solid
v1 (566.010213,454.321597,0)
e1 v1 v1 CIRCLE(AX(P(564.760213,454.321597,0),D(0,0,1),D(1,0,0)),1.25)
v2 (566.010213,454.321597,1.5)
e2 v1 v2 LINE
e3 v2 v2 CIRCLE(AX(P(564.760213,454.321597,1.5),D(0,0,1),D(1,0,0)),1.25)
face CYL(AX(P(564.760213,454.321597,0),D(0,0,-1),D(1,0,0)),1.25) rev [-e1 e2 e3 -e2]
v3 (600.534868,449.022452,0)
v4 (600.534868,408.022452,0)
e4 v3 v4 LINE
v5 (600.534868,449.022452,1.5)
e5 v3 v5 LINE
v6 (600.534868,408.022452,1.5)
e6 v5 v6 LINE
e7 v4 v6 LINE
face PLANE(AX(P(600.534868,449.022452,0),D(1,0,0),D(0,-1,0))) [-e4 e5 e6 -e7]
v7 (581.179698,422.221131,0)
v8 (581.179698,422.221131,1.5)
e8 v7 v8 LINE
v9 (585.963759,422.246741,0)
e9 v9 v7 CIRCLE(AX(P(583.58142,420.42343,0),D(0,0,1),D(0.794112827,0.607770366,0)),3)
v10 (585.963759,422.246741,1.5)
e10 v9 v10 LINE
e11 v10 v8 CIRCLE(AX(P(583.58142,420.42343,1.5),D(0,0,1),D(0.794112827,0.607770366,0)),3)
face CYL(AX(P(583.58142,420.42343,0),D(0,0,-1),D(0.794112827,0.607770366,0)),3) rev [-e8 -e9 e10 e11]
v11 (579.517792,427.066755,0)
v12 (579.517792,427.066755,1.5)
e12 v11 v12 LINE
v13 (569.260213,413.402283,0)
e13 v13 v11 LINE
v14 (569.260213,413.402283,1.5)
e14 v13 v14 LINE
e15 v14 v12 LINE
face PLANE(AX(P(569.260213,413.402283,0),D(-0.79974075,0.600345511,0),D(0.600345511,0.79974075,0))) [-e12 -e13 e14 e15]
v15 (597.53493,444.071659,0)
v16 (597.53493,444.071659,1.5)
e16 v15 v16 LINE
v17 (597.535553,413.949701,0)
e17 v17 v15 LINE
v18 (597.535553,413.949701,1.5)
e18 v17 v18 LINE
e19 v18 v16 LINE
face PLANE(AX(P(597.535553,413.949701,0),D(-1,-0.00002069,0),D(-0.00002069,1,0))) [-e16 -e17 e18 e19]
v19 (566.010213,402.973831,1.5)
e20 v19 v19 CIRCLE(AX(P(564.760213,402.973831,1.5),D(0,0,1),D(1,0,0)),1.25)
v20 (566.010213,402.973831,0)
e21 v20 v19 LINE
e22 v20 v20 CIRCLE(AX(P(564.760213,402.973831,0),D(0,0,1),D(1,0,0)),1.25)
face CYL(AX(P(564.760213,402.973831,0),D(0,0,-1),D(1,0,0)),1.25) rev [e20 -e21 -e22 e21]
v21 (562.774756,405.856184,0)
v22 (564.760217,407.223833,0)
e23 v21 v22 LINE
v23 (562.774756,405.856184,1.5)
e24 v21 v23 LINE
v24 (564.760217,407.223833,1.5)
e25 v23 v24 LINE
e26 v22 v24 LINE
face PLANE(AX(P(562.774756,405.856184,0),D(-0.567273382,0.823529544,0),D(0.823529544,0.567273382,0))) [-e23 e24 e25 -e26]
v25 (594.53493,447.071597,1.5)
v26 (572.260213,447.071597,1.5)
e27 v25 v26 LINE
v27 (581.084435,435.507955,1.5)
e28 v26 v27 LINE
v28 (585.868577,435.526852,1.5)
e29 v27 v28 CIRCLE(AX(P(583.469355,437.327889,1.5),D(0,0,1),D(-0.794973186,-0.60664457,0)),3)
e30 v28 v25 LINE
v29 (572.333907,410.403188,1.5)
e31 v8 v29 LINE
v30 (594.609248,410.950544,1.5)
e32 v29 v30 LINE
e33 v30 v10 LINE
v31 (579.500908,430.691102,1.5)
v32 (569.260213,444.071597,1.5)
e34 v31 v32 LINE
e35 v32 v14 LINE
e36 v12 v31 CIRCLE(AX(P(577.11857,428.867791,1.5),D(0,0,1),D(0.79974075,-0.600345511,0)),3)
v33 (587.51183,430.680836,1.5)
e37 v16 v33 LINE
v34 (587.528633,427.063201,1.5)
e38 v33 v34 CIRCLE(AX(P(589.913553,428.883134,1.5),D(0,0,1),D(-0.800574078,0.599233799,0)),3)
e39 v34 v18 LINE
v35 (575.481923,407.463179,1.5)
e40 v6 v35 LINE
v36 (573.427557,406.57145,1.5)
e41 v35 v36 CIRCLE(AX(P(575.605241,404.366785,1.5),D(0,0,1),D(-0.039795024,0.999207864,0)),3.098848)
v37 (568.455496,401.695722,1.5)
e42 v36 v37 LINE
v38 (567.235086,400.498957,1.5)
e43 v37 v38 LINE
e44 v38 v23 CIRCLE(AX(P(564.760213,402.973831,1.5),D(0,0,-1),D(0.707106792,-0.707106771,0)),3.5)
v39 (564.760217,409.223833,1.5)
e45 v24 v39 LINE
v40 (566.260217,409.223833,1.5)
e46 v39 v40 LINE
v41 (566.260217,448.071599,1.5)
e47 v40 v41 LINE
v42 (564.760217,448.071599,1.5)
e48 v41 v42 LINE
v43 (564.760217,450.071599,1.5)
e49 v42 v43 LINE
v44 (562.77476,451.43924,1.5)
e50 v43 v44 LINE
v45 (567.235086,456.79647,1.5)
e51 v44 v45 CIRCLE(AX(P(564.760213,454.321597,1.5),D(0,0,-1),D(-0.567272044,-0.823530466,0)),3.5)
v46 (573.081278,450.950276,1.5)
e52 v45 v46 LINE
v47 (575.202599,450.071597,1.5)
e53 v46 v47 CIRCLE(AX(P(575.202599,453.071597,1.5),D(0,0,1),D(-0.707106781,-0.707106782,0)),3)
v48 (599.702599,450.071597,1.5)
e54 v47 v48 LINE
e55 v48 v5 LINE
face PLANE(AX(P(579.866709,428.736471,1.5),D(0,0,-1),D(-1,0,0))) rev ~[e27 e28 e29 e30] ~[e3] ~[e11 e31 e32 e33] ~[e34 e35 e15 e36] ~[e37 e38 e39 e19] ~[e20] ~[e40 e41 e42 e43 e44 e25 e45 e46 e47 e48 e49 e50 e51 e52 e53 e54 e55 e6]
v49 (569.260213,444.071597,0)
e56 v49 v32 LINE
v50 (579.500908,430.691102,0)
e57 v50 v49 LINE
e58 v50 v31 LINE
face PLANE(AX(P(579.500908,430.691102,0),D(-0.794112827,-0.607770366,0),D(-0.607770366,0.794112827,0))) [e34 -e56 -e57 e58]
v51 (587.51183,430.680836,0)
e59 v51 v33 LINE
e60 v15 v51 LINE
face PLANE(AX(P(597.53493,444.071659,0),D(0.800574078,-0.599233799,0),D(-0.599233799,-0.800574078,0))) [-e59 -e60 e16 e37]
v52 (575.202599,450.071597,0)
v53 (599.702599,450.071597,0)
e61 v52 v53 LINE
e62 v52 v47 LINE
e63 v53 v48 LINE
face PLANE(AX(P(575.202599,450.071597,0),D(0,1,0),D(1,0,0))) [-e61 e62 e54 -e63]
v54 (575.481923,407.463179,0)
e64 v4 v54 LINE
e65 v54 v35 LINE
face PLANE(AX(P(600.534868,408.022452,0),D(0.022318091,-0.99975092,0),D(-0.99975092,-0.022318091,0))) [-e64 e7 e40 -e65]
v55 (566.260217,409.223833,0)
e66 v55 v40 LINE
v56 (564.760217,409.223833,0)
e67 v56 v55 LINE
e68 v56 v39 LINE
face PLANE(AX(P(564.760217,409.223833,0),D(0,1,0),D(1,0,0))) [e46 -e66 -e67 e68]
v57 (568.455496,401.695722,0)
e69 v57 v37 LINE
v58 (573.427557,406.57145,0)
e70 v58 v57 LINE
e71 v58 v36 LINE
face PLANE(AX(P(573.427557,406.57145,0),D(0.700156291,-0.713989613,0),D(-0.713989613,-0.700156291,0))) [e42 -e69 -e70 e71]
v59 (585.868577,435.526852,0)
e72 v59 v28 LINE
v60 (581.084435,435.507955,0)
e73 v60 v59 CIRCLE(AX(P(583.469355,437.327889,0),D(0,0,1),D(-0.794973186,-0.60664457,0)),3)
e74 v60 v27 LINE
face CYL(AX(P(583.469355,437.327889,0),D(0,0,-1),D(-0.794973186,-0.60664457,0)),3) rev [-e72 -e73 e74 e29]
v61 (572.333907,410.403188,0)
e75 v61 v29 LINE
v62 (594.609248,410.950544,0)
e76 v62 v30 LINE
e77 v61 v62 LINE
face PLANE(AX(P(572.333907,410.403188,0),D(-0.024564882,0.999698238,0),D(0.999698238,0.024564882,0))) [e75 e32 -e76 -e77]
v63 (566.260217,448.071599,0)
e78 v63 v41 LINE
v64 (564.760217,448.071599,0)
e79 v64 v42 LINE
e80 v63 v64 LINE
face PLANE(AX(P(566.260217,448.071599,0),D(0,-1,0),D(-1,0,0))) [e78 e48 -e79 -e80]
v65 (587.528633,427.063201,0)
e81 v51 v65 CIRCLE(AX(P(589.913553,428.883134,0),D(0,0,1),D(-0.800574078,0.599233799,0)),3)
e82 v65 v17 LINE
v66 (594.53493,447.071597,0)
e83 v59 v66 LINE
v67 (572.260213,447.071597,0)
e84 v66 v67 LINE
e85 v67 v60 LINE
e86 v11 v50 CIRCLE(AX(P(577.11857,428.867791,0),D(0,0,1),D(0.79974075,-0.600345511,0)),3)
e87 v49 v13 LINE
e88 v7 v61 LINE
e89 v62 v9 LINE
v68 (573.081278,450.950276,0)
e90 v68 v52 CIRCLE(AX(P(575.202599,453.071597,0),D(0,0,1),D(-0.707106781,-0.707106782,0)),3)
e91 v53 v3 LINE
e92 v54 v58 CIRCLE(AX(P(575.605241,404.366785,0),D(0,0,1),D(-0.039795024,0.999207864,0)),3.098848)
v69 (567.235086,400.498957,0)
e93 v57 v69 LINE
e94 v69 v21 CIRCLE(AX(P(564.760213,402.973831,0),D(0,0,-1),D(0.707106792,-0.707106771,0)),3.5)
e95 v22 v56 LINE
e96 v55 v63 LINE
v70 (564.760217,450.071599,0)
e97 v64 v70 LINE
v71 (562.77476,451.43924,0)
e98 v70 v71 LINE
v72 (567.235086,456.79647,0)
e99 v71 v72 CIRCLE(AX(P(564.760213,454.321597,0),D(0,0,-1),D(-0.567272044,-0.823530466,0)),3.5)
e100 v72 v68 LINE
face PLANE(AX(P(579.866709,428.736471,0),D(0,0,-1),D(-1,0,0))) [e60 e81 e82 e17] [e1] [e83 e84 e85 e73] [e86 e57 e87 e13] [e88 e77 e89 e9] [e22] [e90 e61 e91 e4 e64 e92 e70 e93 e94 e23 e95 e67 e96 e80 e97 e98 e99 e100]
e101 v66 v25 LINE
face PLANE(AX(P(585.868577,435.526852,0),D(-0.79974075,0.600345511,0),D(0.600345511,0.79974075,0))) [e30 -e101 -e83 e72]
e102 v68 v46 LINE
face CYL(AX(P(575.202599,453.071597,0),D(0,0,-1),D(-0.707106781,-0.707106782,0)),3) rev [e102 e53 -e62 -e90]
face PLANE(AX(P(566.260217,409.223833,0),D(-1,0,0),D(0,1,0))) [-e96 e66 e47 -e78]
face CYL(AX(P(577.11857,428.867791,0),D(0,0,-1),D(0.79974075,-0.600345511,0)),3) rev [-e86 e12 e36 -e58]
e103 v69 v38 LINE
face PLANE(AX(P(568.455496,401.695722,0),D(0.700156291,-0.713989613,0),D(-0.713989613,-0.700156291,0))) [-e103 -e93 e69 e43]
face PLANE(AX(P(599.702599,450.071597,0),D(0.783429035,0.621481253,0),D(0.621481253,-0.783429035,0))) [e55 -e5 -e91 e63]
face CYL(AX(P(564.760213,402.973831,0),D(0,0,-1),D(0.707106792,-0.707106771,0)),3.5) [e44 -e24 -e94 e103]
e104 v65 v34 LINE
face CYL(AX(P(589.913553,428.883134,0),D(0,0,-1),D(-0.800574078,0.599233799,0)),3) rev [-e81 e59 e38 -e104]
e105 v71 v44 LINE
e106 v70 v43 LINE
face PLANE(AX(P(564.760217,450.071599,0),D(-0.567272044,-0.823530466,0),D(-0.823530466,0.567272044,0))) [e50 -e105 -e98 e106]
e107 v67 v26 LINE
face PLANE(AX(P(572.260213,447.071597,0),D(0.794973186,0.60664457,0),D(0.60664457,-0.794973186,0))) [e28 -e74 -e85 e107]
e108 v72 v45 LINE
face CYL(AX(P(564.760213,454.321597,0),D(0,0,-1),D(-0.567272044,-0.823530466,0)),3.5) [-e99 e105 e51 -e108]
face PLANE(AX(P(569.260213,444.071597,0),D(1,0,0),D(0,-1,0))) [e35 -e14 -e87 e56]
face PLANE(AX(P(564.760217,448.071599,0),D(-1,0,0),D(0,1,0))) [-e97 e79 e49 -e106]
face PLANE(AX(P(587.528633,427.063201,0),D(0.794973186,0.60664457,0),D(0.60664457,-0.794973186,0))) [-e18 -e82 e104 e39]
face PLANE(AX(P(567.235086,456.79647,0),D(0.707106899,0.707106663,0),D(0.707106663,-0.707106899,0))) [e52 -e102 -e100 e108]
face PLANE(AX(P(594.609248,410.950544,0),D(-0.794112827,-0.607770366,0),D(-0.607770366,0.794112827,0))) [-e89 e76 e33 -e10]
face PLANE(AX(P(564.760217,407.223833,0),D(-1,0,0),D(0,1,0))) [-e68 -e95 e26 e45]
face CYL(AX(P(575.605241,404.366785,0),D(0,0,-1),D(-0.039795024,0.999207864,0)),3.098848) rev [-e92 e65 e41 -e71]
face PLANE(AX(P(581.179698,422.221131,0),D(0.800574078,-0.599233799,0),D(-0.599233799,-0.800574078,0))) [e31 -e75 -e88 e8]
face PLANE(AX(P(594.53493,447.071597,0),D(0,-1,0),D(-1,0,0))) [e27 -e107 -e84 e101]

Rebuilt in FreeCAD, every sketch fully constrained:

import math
import FreeCAD as App
import Part
import Sketcher

V = App.Vector
Q = App.Units.Quantity

doc = App.newDocument("Part")
params = doc.addObject("Spreadsheet::Sheet", "Params")
for row, (alias, value) in enumerate([
    ("sketch1_radius", "3 mm"),
    ("sketch1_diameter", "2.5 mm"),
    ("sketch1_radius2", "3.5 mm"),
    ("sketch1_height", "2 mm"),
    ("sketch1_height2", "41 mm"),
    ("pad1_length", "1.5 mm"),
], start=1):
    params.set(f"A{row}", alias)
    params.set(f"B{row}", "=" + value)
    params.setAlias(f"B{row}", alias)

body = doc.addObject("PartDesign::Body", "Body")

# Sketch on XY plane
sketch1 = body.newObject("Sketcher::SketchObject", "Sketch")
sketch1.AttachmentSupport = (doc.getObject("XY_Plane"), [""])
sketch1.MapMode = "FlatFace"
sketch1.addGeometry(Part.LineSegment(V(573.1, 451, 0), V(567.2, 456.8, 0)), False)
sketch1.addGeometry(Part.ArcOfCircle(Part.Circle(V(564.8, 454.3, 0), V(0, 0, 1), 3.5), math.radians(45), math.radians(235)), False)
sketch1.addGeometry(Part.LineSegment(V(562.8, 451.4, 0), V(564.8, 450.1, 0)), False)
sketch1.addGeometry(Part.LineSegment(V(564.8, 450.1, 0), V(564.8, 448.1, 0)), False)
sketch1.addGeometry(Part.LineSegment(V(564.8, 448.1, 0), V(566.3, 448.1, 0)), False)
sketch1.addGeometry(Part.LineSegment(V(566.3, 448.1, 0), V(566.3, 409.2, 0)), False)
sketch1.addGeometry(Part.LineSegment(V(566.3, 409.2, 0), V(564.8, 409.2, 0)), False)
sketch1.addGeometry(Part.LineSegment(V(564.8, 409.2, 0), V(564.8, 407.2, 0)), False)
sketch1.addGeometry(Part.LineSegment(V(564.8, 407.2, 0), V(562.8, 405.9, 0)), False)
sketch1.addGeometry(Part.ArcOfCircle(Part.Circle(V(564.8, 403, 0), V(0, 0, 1), 3.5), math.radians(125), math.radians(315)), False)
sketch1.addGeometry(Part.LineSegment(V(567.2, 400.5, 0), V(568.5, 401.7, 0)), False)
sketch1.addGeometry(Part.LineSegment(V(568.5, 401.7, 0), V(573.4, 406.6, 0)), False)
sketch1.addGeometry(Part.ArcOfCircle(Part.Circle(V(575.6, 404.4, 0), V(0, 0, 1), 3.1), math.radians(92), math.radians(135)), False)
sketch1.addGeometry(Part.LineSegment(V(575.5, 407.5, 0), V(600.5, 408, 0)), False)
sketch1.addGeometry(Part.LineSegment(V(600.5, 408, 0), V(600.5, 449, 0)), False)
sketch1.addGeometry(Part.LineSegment(V(600.5, 449, 0), V(599.7, 450.1, 0)), False)
sketch1.addGeometry(Part.LineSegment(V(599.7, 450.1, 0), V(575.2, 450.1, 0)), False)
sketch1.addGeometry(Part.ArcOfCircle(Part.Circle(V(575.2, 453.1, 0), V(0, 0, 1), 3), math.radians(-135), math.radians(-90)), False)
sketch1.addGeometry(Part.LineSegment(V(586, 422.2, 0), V(594.6, 411, 0)), False)
sketch1.addGeometry(Part.LineSegment(V(594.6, 411, 0), V(572.3, 410.4, 0)), False)
sketch1.addGeometry(Part.LineSegment(V(572.3, 410.4, 0), V(581.2, 422.2, 0)), False)
sketch1.addGeometry(Part.ArcOfCircle(Part.Circle(V(583.6, 420.4, 0), V(0, 0, 1), 3), math.radians(37), math.radians(143)), False)
sketch1.addGeometry(Part.Circle(V(564.8, 403, 0), V(0, 0, 1), 1.2), False)
sketch1.addGeometry(Part.LineSegment(V(587.5, 430.7, 0), V(597.5, 444.1, 0)), False)
sketch1.addGeometry(Part.LineSegment(V(597.5, 444.1, 0), V(597.5, 413.9, 0)), False)
sketch1.addGeometry(Part.LineSegment(V(597.5, 413.9, 0), V(587.5, 427.1, 0)), False)
sketch1.addGeometry(Part.ArcOfCircle(Part.Circle(V(589.9, 428.9, 0), V(0, 0, 1), 3), math.radians(143), math.radians(217)), False)
sketch1.addGeometry(Part.LineSegment(V(581.1, 435.5, 0), V(572.3, 447.1, 0)), False)
sketch1.addGeometry(Part.LineSegment(V(572.3, 447.1, 0), V(594.5, 447.1, 0)), False)
sketch1.addGeometry(Part.LineSegment(V(594.5, 447.1, 0), V(585.9, 435.5, 0)), False)
sketch1.addGeometry(Part.ArcOfCircle(Part.Circle(V(583.5, 437.3, 0), V(0, 0, 1), 3), math.radians(-143), math.radians(-37)), False)
sketch1.addGeometry(Part.LineSegment(V(579.5, 427.1, 0), V(569.3, 413.4, 0)), False)
sketch1.addGeometry(Part.LineSegment(V(569.3, 413.4, 0), V(569.3, 444.1, 0)), False)
sketch1.addGeometry(Part.LineSegment(V(569.3, 444.1, 0), V(579.5, 430.7, 0)), False)
sketch1.addGeometry(Part.ArcOfCircle(Part.Circle(V(577.1, 428.9, 0), V(0, 0, 1), 3), math.radians(-37), math.radians(37)), False)
sketch1.addGeometry(Part.Circle(V(564.8, 454.3, 0), V(0, 0, 1), 1.2), False)
sketch1.addConstraint(Sketcher.Constraint("Tangent", 0, 2, 1, 1))
sketch1.addConstraint(Sketcher.Constraint("Tangent", 1, 2, 2, 1))
sketch1.addConstraint(Sketcher.Constraint("Coincident", 2, 2, 3, 1))
sketch1.addConstraint(Sketcher.Constraint("Coincident", 3, 2, 4, 1))
sketch1.addConstraint(Sketcher.Constraint("Coincident", 4, 2, 5, 1))
sketch1.addConstraint(Sketcher.Constraint("Coincident", 5, 2, 6, 1))
sketch1.addConstraint(Sketcher.Constraint("Coincident", 6, 2, 7, 1))
sketch1.addConstraint(Sketcher.Constraint("Coincident", 7, 2, 8, 1))
sketch1.addConstraint(Sketcher.Constraint("Tangent", 8, 2, 9, 1))
sketch1.addConstraint(Sketcher.Constraint("Coincident", 9, 2, 10, 1))
sketch1.addConstraint(Sketcher.Constraint("Coincident", 10, 2, 11, 1))
sketch1.addConstraint(Sketcher.Constraint("Coincident", 11, 2, 12, 2))
sketch1.addConstraint(Sketcher.Constraint("Coincident", 12, 1, 13, 1))
sketch1.addConstraint(Sketcher.Constraint("Coincident", 13, 2, 14, 1))
sketch1.addConstraint(Sketcher.Constraint("Coincident", 14, 2, 15, 1))
sketch1.addConstraint(Sketcher.Constraint("Coincident", 15, 2, 16, 1))
sketch1.addConstraint(Sketcher.Constraint("Tangent", 16, 2, 17, 2))
sketch1.addConstraint(Sketcher.Constraint("Tangent", 17, 1, 0, 1))
sketch1.addConstraint(Sketcher.Constraint("Coincident", 18, 2, 19, 1))
sketch1.addConstraint(Sketcher.Constraint("Coincident", 19, 2, 20, 1))
sketch1.addConstraint(Sketcher.Constraint("Tangent", 20, 2, 21, 2))
sketch1.addConstraint(Sketcher.Constraint("Tangent", 21, 1, 18, 1))
sketch1.addConstraint(Sketcher.Constraint("Coincident", 23, 2, 24, 1))
sketch1.addConstraint(Sketcher.Constraint("Coincident", 24, 2, 25, 1))
sketch1.addConstraint(Sketcher.Constraint("Tangent", 25, 2, 26, 2))
sketch1.addConstraint(Sketcher.Constraint("Tangent", 26, 1, 23, 1))
sketch1.addConstraint(Sketcher.Constraint("Coincident", 27, 2, 28, 1))
sketch1.addConstraint(Sketcher.Constraint("Coincident", 28, 2, 29, 1))
sketch1.addConstraint(Sketcher.Constraint("Tangent", 29, 2, 30, 2))
sketch1.addConstraint(Sketcher.Constraint("Tangent", 30, 1, 27, 1))
sketch1.addConstraint(Sketcher.Constraint("Coincident", 31, 2, 32, 1))
sketch1.addConstraint(Sketcher.Constraint("Coincident", 32, 2, 33, 1))
sketch1.addConstraint(Sketcher.Constraint("Tangent", 33, 2, 34, 2))
sketch1.addConstraint(Sketcher.Constraint("Tangent", 34, 1, 31, 1))
sketch1.addConstraint(Sketcher.Constraint("Vertical", 3))
sketch1.addConstraint(Sketcher.Constraint("Horizontal", 4))
sketch1.addConstraint(Sketcher.Constraint("Vertical", 5))
sketch1.addConstraint(Sketcher.Constraint("Horizontal", 6))
sketch1.addConstraint(Sketcher.Constraint("Vertical", 7))
sketch1.addConstraint(Sketcher.Constraint("Vertical", 14))
sketch1.addConstraint(Sketcher.Constraint("Horizontal", 16))
sketch1.addConstraint(Sketcher.Constraint("Horizontal", 28))
sketch1.addConstraint(Sketcher.Constraint("Vertical", 32))
sketch1.addConstraint(Sketcher.Constraint("Coincident", 22, 3, 9, 3))
sketch1.addConstraint(Sketcher.Constraint("Coincident", 35, 3, 1, 3))
sketch1.addConstraint(Sketcher.Constraint("Equal", 1, 9))
sketch1.addConstraint(Sketcher.Constraint("Equal", 17, 21))
sketch1.addConstraint(Sketcher.Constraint("Equal", 21, 26))
sketch1.addConstraint(Sketcher.Constraint("Equal", 26, 30))
sketch1.addConstraint(Sketcher.Constraint("Equal", 30, 34))
sketch1.addConstraint(Sketcher.Constraint("Equal", 22, 35))
sketch1.addConstraint(Sketcher.Constraint("Parallel", 10, 11))
sketch1.addConstraint(Sketcher.Constraint("Parallel", 20, 23))
sketch1.addConstraint(Sketcher.Constraint("Parallel", 25, 27))
sketch1.addConstraint(Sketcher.Constraint("Parallel", 29, 31))
sketch1.addConstraint(Sketcher.Constraint("Parallel", 18, 33))
sketch1.addConstraint(Sketcher.Constraint("Vertical", 1, 3, 9, 3))
sketch1.addConstraint(Sketcher.Constraint("Vertical", 3, 2, 6, 2))
sketch1.addConstraint(Sketcher.Constraint("Vertical", 0, 2, 9, 2))
sketch1.addConstraint(Sketcher.Constraint("Equal", 3, 7))
sketch1.addConstraint(Sketcher.Constraint("Radius", 17, Q("3 mm")))
sketch1.addConstraint(Sketcher.Constraint("Diameter", 22, Q("2.5 mm")))
sketch1.addConstraint(Sketcher.Constraint("Radius", 1, Q("3.5 mm")))
sketch1.addConstraint(Sketcher.Constraint("DistanceY", 3, 2, 3, 1, Q("2 mm")))
sketch1.addConstraint(Sketcher.Constraint("DistanceY", 14, 1, 14, 2, Q("41 mm")))
sketch1.addConstraint(Sketcher.Constraint("Angle", 0, Q("134.99999 deg")))
sketch1.addConstraint(Sketcher.Constraint("DistanceX", 4, 1, 4, 2, Q("1.5 mm")))
sketch1.addConstraint(Sketcher.Constraint("DistanceX", 16, 2, 16, 1, Q("24.5 mm")))
sketch1.addConstraint(Sketcher.Constraint("DistanceY", 27, 2, 16, 2, Q("3 mm")))
sketch1.addConstraint(Sketcher.Constraint("DistanceX", 28, 2, 23, 2, Q("3 mm")))
sketch1.addConstraint(Sketcher.Constraint("DistanceX", 32, 2, 27, 2, Q("3 mm")))
sketch1.addConstraint(Sketcher.Constraint("DistanceY", 32, 2, 27, 2, Q("3 mm")))
sketch1.addConstraint(Sketcher.Constraint("Radius", 12, Q("3.098848 mm")))
sketch1.addConstraint(Sketcher.Constraint("DistanceY", 17, 3, 1, 3, Q("1.25 mm")))
sketch1.addConstraint(Sketcher.Constraint("DistanceY", 11, 2, 13, 2, Q("1.451001 mm")))
sketch1.addConstraint(Sketcher.Constraint("DistanceX", 26, 3, 24, 2, Q("7.622001 mm")))
sketch1.addConstraint(Sketcher.Constraint("DistanceX", -1, 1, 17, 3, Q("575.202599 mm")))
sketch1.addConstraint(Sketcher.Constraint("DistanceY", -1, 1, 2, 2, Q("450.071599 mm")))
sketch1.addConstraint(Sketcher.Constraint("DistanceX", -1, 1, 20, 2, Q("581.179698 mm")))
sketch1.addConstraint(Sketcher.Constraint("DistanceY", -1, 1, 24, 2, Q("413.949701 mm")))
sketch1.addConstraint(Sketcher.Constraint("DistanceY", -1, 1, 25, 2, Q("427.063201 mm")))
sketch1.addConstraint(Sketcher.Constraint("DistanceY", 9, 3, 21, 3, Q("17.449599 mm")))
sketch1.addConstraint(Sketcher.Constraint("DistanceX", 34, 3, 14, 2, Q("23.416298 mm")))
sketch1.addConstraint(Sketcher.Constraint("DistanceY", 21, 3, 20, 2, Q("1.797701 mm")))
sketch1.addConstraint(Sketcher.Constraint("DistanceX", 26, 1, 28, 2, Q("7.0231 mm")))
sketch1.addConstraint(Sketcher.Constraint("Distance", 2, Q("2.410908 mm")))
sketch1.addConstraint(Sketcher.Constraint("Distance", 11, Q("6.963771 mm")))
sketch1.addConstraint(Sketcher.Constraint("Distance", 15, Q("1.33917 mm")))
sketch1.addConstraint(Sketcher.Constraint("Distance", 27, Q("14.545952 mm")))
sketch1.addConstraint(Sketcher.Constraint("Distance", 29, Q("14.435609 mm")))
sketch1.addConstraint(Sketcher.Constraint("DistanceY", 5, 2, 5, 1, Q("38.847766 mm")))
sketch1.addConstraint(Sketcher.Constraint("DistanceY", 32, 1, 32, 2, Q("30.669314 mm")))
sketch1.addConstraint(Sketcher.Constraint("DistanceY", -1, 1, 9, 3, Q("402.973831 mm")))
sketch1.addConstraint(Sketcher.Constraint("DistanceX", -1, 1, 12, 3, Q("575.605241 mm")))
sketch1.addConstraint(Sketcher.Constraint("DistanceX", -1, 1, 34, 3, Q("577.11857 mm")))
sketch1.addConstraint(Sketcher.Constraint("DistanceY", -1, 1, 34, 3, Q("428.867791 mm")))
sketch1.addConstraint(Sketcher.Constraint("DistanceX", -1, 1, 1, 2, Q("562.77476 mm")))
sketch1.addConstraint(Sketcher.Constraint("DistanceY", -1, 1, 12, 1, Q("407.463179 mm")))
sketch1.addConstraint(Sketcher.Constraint("DistanceY", -1, 1, 19, 2, Q("410.403188 mm")))
sketch1.addConstraint(Sketcher.Constraint("DistanceY", 12, 3, 1, 3, Q("49.954811 mm")))
sketch1.addConstraint(Sketcher.Constraint("DistanceX", 18, 2, 13, 2, Q("5.92562 mm")))
sketch1.setExpression("Constraints[60]", "Params.sketch1_radius")
sketch1.setExpression("Constraints[61]", "Params.sketch1_diameter")
sketch1.setExpression("Constraints[62]", "Params.sketch1_radius2")
sketch1.setExpression("Constraints[63]", "Params.sketch1_height")
sketch1.setExpression("Constraints[64]", "Params.sketch1_height2")
pad1 = body.newObject("PartDesign::Pad", "Pad")
pad1.Profile = sketch1
pad1.setExpression("Length", "Params.pad1_length")

doc.recompute()
